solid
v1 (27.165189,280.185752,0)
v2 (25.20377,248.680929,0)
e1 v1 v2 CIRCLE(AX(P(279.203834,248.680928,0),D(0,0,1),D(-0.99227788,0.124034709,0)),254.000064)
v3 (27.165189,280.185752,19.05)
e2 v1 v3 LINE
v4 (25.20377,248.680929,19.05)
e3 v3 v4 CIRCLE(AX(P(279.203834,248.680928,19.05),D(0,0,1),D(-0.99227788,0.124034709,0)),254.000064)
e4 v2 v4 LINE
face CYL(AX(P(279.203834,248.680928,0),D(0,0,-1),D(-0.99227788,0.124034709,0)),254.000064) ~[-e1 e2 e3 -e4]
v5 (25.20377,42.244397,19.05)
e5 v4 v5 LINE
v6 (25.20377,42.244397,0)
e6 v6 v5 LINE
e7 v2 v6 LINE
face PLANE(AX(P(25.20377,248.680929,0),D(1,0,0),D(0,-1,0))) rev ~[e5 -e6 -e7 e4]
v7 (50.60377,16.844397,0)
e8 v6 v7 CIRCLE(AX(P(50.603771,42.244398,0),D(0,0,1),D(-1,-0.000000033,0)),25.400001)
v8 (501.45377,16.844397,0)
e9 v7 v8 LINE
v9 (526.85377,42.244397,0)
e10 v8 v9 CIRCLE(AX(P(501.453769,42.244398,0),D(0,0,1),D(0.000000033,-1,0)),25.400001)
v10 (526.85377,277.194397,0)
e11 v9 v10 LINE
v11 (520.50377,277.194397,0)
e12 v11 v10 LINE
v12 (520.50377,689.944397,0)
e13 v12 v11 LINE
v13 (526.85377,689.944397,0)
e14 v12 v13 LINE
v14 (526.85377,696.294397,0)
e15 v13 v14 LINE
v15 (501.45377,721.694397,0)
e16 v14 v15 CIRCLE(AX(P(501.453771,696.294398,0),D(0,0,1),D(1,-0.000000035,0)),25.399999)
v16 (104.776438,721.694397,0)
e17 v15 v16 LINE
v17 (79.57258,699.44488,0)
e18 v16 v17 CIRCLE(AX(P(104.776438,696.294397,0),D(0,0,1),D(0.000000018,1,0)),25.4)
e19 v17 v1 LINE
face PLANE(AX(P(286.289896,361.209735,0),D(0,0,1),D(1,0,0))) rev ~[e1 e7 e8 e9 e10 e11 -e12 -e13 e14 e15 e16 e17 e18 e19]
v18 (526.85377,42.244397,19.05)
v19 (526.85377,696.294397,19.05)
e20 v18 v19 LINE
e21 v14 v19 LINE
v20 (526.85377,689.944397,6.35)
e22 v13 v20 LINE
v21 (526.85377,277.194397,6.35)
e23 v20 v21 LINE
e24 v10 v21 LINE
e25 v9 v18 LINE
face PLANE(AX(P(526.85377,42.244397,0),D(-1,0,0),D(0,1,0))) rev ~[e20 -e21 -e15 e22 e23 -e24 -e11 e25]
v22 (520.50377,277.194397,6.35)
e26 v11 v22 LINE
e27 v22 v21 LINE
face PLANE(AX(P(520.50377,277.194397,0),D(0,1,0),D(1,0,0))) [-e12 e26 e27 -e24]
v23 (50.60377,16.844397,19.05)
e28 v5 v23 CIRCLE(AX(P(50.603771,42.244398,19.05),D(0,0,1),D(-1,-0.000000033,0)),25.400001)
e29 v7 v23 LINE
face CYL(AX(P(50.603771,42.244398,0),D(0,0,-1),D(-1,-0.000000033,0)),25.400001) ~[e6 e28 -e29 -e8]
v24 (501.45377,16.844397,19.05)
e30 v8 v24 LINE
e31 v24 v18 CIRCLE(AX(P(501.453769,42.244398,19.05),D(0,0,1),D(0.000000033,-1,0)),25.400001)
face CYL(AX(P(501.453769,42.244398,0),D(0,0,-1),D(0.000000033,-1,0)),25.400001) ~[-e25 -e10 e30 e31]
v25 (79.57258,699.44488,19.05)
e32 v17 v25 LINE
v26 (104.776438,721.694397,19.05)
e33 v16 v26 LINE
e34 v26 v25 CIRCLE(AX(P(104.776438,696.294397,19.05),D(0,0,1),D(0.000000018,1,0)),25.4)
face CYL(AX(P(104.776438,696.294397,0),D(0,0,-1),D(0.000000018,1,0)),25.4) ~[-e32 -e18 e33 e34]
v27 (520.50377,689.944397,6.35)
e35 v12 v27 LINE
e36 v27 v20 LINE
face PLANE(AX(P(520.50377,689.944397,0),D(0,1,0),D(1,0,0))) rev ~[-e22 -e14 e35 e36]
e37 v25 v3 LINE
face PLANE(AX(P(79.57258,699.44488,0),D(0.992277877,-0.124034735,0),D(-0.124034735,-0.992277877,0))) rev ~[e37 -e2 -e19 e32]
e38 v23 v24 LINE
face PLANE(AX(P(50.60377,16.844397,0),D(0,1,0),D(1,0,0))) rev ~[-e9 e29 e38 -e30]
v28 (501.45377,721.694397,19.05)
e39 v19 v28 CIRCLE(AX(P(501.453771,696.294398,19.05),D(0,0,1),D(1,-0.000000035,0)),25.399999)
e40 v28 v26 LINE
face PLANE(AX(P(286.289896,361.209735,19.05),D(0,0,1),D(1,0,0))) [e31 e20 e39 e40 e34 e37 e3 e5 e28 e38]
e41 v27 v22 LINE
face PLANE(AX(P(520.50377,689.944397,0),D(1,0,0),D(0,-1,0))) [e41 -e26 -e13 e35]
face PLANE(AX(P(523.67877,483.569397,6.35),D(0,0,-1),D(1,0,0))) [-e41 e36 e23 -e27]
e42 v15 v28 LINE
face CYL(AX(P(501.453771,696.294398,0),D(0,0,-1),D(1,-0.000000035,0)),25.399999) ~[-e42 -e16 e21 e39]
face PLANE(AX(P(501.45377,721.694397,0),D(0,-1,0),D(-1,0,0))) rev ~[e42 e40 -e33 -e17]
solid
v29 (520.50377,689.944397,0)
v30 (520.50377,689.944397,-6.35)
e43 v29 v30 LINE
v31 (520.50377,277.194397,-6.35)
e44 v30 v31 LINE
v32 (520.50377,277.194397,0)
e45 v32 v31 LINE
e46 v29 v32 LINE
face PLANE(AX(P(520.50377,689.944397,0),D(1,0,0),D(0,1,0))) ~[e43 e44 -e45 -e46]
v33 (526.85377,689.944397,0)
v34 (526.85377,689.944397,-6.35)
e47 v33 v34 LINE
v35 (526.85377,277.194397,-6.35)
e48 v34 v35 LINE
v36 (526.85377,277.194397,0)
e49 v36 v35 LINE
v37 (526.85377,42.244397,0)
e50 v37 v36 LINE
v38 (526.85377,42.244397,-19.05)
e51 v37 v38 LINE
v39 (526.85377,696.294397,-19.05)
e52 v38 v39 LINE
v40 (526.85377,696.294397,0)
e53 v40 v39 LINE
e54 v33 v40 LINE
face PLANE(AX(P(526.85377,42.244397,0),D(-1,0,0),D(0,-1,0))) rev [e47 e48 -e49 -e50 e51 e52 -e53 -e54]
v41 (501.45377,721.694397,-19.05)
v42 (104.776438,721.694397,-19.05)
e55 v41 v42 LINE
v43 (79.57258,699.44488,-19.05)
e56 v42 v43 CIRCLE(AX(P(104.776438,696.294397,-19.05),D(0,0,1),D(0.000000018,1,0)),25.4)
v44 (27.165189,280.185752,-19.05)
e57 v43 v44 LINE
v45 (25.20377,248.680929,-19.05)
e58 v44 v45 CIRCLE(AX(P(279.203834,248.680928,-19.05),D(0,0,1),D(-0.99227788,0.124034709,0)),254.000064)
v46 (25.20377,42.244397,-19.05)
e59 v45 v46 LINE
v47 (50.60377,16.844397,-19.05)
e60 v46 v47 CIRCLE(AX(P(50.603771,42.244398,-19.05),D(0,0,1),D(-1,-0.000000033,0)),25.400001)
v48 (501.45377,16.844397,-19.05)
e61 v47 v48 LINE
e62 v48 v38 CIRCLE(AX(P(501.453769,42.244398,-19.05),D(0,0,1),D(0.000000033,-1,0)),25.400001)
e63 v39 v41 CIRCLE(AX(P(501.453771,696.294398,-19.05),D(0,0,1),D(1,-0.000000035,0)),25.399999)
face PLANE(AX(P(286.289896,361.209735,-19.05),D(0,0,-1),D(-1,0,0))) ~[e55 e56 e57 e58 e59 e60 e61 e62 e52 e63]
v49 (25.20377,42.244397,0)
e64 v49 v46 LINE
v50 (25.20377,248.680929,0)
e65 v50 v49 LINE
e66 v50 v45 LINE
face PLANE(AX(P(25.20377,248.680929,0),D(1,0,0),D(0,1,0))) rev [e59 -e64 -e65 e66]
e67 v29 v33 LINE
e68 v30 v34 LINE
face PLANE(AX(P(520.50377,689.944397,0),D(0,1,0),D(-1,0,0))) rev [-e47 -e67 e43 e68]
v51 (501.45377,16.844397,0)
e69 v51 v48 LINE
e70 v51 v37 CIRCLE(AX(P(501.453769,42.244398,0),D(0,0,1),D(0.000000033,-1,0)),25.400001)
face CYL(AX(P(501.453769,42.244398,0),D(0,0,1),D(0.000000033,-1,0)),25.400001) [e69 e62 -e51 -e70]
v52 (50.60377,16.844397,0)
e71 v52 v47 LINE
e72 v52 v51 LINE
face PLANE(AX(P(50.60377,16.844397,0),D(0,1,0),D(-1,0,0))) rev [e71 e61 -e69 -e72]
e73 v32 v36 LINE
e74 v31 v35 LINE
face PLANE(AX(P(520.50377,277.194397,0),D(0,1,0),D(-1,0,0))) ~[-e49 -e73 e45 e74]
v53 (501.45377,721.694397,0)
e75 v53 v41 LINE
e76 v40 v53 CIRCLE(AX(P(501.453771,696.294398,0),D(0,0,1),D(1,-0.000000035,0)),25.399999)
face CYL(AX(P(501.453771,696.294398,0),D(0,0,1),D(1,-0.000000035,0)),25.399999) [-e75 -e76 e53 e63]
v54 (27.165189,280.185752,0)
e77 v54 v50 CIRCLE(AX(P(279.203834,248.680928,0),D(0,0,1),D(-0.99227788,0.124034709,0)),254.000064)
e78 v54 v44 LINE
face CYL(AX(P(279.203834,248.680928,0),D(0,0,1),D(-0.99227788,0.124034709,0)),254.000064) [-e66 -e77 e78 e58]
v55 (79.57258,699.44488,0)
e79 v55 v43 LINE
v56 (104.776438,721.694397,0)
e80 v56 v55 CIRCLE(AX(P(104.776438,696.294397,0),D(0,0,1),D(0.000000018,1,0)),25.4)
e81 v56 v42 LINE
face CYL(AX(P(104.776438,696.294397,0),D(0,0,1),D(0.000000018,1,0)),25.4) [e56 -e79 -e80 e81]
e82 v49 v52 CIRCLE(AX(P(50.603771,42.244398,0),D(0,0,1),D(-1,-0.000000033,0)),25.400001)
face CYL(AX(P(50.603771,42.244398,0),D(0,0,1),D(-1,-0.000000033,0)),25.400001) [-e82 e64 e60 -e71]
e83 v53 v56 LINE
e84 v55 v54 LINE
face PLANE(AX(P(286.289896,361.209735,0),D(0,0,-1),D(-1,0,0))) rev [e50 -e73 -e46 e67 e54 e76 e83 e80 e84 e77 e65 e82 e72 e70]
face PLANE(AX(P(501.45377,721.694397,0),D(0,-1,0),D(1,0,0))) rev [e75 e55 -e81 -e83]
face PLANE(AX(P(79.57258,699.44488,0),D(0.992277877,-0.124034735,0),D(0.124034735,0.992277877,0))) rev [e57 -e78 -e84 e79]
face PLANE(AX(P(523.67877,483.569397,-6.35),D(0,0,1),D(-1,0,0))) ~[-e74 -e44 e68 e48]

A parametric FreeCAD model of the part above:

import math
import FreeCAD as App
import Part
import Sketcher
from FreeCAD import Vector
Q = App.Units.Quantity

doc = App.newDocument("Part")
body = doc.addObject("PartDesign::Body", "Body")

# Sketch on XY plane
sketch1 = doc.addObject("Sketcher::SketchObject", "Sketch")
body.addObject(sketch1)
sketch1.AttachmentSupport = (doc.XY_Plane, [""])
sketch1.MapMode = "FlatFace"
sketch1.addGeometry(Part.ArcOfCircle(Part.Circle(Vector(50.603771, 42.244398, 0), Vector(0, 0, 1), 25.400001), math.radians(-179.999998), math.radians(-90.000002)), False)
sketch1.addGeometry(Part.LineSegment(Vector(50.60377, 16.844397, 0), Vector(501.45377, 16.844397, 0)), False)
sketch1.addGeometry(Part.ArcOfCircle(Part.Circle(Vector(501.453769, 42.244398, 0), Vector(0, 0, 1), 25.400001), math.radians(-89.999998), math.radians(-0.000002)), False)
sketch1.addGeometry(Part.LineSegment(Vector(526.85377, 42.244397, 0), Vector(526.85377, 696.294397, 0)), False)
sketch1.addGeometry(Part.ArcOfCircle(Part.Circle(Vector(501.453771, 696.294398, 0), Vector(0, 0, 1), 25.399999), math.radians(-0.000002), math.radians(90.000002)), False)
sketch1.addGeometry(Part.LineSegment(Vector(501.45377, 721.694397, 0), Vector(104.776438, 721.694397, 0)), False)
sketch1.addGeometry(Part.ArcOfCircle(Part.Circle(Vector(104.776438, 696.294397, 0), Vector(0, 0, 1), 25.4), math.radians(89.999999), math.radians(172.874983)), False)
sketch1.addGeometry(Part.LineSegment(Vector(79.57258, 699.44488, 0), Vector(27.165189, 280.185752, 0)), False)
sketch1.addGeometry(Part.ArcOfCircle(Part.Circle(Vector(279.203834, 248.680928, 0), Vector(0, 0, 1), 254.000064), math.radians(172.874985), math.radians(180)), False)
sketch1.addGeometry(Part.LineSegment(Vector(25.20377, 248.680929, 0), Vector(25.20377, 42.244397, 0)), False)
sketch1.addConstraint(Sketcher.Constraint("Tangent", 0, 2, 1, 1))
sketch1.addConstraint(Sketcher.Constraint("Tangent", 1, 2, 2, 1))
sketch1.addConstraint(Sketcher.Constraint("Tangent", 2, 2, 3, 1))
sketch1.addConstraint(Sketcher.Constraint("Tangent", 3, 2, 4, 1))
sketch1.addConstraint(Sketcher.Constraint("Tangent", 4, 2, 5, 1))
sketch1.addConstraint(Sketcher.Constraint("Tangent", 5, 2, 6, 1))
sketch1.addConstraint(Sketcher.Constraint("Tangent", 6, 2, 7, 1))
sketch1.addConstraint(Sketcher.Constraint("Tangent", 7, 2, 8, 1))
sketch1.addConstraint(Sketcher.Constraint("Tangent", 8, 2, 9, 1))
sketch1.addConstraint(Sketcher.Constraint("Tangent", 9, 2, 0, 1))
sketch1.addConstraint(Sketcher.Constraint("Horizontal", 1))
sketch1.addConstraint(Sketcher.Constraint("Vertical", 3))
sketch1.addConstraint(Sketcher.Constraint("Horizontal", 5))
sketch1.addConstraint(Sketcher.Constraint("Vertical", 9))
sketch1.addConstraint(Sketcher.Constraint("Equal", 0, 2))
sketch1.addConstraint(Sketcher.Constraint("Equal", 2, 4))
sketch1.addConstraint(Sketcher.Constraint("Equal", 4, 6))
sketch1.addConstraint(Sketcher.Constraint("Radius", 0, Q("1 in")))
sketch1.addConstraint(Sketcher.Constraint("DistanceX", 1, 1, 1, 2, Q("17.75 in")))
sketch1.addConstraint(Sketcher.Constraint("DistanceY", 3, 1, 3, 2, Q("25.75 in")))
sketch1.addConstraint(Sketcher.Constraint("DistanceY", -1, 1, 6, 2, Q("27.5372 in")))
sketch1.addConstraint(Sketcher.Constraint("Radius", 8, Q("254.000064 mm")))
sketch1.addConstraint(Sketcher.Constraint("DistanceY", 9, 2, 9, 1, Q("206.436532 mm")))
sketch1.addConstraint(Sketcher.Constraint("DistanceX", 5, 2, 5, 1, Q("396.677332 mm")))
sketch1.addConstraint(Sketcher.Constraint("DistanceX", -1, 1, 0, 3, Q("50.603771 mm")))
pad1 = doc.addObject("PartDesign::Pad", "Pad")
body.addObject(pad1)
pad1.Profile = sketch1
pad1.Length = Q("0.75 in")

# Sketch on XY plane
sketch2 = doc.addObject("Sketcher::SketchObject", "Sketch001")
body.addObject(sketch2)
sketch2.AttachmentSupport = (doc.XY_Plane, [""])
sketch2.MapMode = "FlatFace"
sketch2.addGeometry(Part.LineSegment(Vector(520.50377, 277.194397, 0), Vector(520.50377, 689.944397, 0)), False)
sketch2.addGeometry(Part.LineSegment(Vector(520.50377, 689.944397, 0), Vector(526.85377, 689.944397, 0)), False)
sketch2.addGeometry(Part.LineSegment(Vector(526.85377, 689.944397, 0), Vector(526.85377, 277.194397, 0)), False)
sketch2.addGeometry(Part.LineSegment(Vector(526.85377, 277.194397, 0), Vector(520.50377, 277.194397, 0)), False)
sketch2.addConstraint(Sketcher.Constraint("Coincident", 0, 2, 1, 1))
sketch2.addConstraint(Sketcher.Constraint("Coincident", 1, 2, 2, 1))
sketch2.addConstraint(Sketcher.Constraint("Coincident", 2, 2, 3, 1))
sketch2.addConstraint(Sketcher.Constraint("Coincident", 3, 2, 0, 1))
sketch2.addConstraint(Sketcher.Constraint("Vertical", 0))
sketch2.addConstraint(Sketcher.Constraint("Horizontal", 1))
sketch2.addConstraint(Sketcher.Constraint("Vertical", 2))
sketch2.addConstraint(Sketcher.Constraint("Horizontal", 3))
sketch2.addConstraint(Sketcher.Constraint("DistanceX", 1, 1, 1, 2, Q("0.25 in")))
sketch2.addConstraint(Sketcher.Constraint("DistanceY", 0, 1, 0, 2, Q("16.25 in")))
sketch2.addConstraint(Sketcher.Constraint("DistanceX", -1, 1, 0, 2, Q("520.50377 mm")))
sketch2.addConstraint(Sketcher.Constraint("DistanceY", -1, 1, 0, 2, Q("689.944397 mm")))
pocket1 = doc.addObject("PartDesign::Pocket", "Pocket")
body.addObject(pocket1)
pocket1.Profile = sketch2
pocket1.Length = Q("0.25 in")
pocket1.Reversed = True
body2 = doc.addObject("PartDesign::Body", "Body001")
doc.recompute()

mirroring = doc.addObject("Part::Mirroring", "Mirroring")
mirroring.Source = body
mirroring.Base = Vector(0, 0, 0)
mirroring.Normal = Vector(0, 0, 1)
body2.BaseFeature = mirroring
doc.recompute()
mirroring.Visibility = False

doc.recompute()
